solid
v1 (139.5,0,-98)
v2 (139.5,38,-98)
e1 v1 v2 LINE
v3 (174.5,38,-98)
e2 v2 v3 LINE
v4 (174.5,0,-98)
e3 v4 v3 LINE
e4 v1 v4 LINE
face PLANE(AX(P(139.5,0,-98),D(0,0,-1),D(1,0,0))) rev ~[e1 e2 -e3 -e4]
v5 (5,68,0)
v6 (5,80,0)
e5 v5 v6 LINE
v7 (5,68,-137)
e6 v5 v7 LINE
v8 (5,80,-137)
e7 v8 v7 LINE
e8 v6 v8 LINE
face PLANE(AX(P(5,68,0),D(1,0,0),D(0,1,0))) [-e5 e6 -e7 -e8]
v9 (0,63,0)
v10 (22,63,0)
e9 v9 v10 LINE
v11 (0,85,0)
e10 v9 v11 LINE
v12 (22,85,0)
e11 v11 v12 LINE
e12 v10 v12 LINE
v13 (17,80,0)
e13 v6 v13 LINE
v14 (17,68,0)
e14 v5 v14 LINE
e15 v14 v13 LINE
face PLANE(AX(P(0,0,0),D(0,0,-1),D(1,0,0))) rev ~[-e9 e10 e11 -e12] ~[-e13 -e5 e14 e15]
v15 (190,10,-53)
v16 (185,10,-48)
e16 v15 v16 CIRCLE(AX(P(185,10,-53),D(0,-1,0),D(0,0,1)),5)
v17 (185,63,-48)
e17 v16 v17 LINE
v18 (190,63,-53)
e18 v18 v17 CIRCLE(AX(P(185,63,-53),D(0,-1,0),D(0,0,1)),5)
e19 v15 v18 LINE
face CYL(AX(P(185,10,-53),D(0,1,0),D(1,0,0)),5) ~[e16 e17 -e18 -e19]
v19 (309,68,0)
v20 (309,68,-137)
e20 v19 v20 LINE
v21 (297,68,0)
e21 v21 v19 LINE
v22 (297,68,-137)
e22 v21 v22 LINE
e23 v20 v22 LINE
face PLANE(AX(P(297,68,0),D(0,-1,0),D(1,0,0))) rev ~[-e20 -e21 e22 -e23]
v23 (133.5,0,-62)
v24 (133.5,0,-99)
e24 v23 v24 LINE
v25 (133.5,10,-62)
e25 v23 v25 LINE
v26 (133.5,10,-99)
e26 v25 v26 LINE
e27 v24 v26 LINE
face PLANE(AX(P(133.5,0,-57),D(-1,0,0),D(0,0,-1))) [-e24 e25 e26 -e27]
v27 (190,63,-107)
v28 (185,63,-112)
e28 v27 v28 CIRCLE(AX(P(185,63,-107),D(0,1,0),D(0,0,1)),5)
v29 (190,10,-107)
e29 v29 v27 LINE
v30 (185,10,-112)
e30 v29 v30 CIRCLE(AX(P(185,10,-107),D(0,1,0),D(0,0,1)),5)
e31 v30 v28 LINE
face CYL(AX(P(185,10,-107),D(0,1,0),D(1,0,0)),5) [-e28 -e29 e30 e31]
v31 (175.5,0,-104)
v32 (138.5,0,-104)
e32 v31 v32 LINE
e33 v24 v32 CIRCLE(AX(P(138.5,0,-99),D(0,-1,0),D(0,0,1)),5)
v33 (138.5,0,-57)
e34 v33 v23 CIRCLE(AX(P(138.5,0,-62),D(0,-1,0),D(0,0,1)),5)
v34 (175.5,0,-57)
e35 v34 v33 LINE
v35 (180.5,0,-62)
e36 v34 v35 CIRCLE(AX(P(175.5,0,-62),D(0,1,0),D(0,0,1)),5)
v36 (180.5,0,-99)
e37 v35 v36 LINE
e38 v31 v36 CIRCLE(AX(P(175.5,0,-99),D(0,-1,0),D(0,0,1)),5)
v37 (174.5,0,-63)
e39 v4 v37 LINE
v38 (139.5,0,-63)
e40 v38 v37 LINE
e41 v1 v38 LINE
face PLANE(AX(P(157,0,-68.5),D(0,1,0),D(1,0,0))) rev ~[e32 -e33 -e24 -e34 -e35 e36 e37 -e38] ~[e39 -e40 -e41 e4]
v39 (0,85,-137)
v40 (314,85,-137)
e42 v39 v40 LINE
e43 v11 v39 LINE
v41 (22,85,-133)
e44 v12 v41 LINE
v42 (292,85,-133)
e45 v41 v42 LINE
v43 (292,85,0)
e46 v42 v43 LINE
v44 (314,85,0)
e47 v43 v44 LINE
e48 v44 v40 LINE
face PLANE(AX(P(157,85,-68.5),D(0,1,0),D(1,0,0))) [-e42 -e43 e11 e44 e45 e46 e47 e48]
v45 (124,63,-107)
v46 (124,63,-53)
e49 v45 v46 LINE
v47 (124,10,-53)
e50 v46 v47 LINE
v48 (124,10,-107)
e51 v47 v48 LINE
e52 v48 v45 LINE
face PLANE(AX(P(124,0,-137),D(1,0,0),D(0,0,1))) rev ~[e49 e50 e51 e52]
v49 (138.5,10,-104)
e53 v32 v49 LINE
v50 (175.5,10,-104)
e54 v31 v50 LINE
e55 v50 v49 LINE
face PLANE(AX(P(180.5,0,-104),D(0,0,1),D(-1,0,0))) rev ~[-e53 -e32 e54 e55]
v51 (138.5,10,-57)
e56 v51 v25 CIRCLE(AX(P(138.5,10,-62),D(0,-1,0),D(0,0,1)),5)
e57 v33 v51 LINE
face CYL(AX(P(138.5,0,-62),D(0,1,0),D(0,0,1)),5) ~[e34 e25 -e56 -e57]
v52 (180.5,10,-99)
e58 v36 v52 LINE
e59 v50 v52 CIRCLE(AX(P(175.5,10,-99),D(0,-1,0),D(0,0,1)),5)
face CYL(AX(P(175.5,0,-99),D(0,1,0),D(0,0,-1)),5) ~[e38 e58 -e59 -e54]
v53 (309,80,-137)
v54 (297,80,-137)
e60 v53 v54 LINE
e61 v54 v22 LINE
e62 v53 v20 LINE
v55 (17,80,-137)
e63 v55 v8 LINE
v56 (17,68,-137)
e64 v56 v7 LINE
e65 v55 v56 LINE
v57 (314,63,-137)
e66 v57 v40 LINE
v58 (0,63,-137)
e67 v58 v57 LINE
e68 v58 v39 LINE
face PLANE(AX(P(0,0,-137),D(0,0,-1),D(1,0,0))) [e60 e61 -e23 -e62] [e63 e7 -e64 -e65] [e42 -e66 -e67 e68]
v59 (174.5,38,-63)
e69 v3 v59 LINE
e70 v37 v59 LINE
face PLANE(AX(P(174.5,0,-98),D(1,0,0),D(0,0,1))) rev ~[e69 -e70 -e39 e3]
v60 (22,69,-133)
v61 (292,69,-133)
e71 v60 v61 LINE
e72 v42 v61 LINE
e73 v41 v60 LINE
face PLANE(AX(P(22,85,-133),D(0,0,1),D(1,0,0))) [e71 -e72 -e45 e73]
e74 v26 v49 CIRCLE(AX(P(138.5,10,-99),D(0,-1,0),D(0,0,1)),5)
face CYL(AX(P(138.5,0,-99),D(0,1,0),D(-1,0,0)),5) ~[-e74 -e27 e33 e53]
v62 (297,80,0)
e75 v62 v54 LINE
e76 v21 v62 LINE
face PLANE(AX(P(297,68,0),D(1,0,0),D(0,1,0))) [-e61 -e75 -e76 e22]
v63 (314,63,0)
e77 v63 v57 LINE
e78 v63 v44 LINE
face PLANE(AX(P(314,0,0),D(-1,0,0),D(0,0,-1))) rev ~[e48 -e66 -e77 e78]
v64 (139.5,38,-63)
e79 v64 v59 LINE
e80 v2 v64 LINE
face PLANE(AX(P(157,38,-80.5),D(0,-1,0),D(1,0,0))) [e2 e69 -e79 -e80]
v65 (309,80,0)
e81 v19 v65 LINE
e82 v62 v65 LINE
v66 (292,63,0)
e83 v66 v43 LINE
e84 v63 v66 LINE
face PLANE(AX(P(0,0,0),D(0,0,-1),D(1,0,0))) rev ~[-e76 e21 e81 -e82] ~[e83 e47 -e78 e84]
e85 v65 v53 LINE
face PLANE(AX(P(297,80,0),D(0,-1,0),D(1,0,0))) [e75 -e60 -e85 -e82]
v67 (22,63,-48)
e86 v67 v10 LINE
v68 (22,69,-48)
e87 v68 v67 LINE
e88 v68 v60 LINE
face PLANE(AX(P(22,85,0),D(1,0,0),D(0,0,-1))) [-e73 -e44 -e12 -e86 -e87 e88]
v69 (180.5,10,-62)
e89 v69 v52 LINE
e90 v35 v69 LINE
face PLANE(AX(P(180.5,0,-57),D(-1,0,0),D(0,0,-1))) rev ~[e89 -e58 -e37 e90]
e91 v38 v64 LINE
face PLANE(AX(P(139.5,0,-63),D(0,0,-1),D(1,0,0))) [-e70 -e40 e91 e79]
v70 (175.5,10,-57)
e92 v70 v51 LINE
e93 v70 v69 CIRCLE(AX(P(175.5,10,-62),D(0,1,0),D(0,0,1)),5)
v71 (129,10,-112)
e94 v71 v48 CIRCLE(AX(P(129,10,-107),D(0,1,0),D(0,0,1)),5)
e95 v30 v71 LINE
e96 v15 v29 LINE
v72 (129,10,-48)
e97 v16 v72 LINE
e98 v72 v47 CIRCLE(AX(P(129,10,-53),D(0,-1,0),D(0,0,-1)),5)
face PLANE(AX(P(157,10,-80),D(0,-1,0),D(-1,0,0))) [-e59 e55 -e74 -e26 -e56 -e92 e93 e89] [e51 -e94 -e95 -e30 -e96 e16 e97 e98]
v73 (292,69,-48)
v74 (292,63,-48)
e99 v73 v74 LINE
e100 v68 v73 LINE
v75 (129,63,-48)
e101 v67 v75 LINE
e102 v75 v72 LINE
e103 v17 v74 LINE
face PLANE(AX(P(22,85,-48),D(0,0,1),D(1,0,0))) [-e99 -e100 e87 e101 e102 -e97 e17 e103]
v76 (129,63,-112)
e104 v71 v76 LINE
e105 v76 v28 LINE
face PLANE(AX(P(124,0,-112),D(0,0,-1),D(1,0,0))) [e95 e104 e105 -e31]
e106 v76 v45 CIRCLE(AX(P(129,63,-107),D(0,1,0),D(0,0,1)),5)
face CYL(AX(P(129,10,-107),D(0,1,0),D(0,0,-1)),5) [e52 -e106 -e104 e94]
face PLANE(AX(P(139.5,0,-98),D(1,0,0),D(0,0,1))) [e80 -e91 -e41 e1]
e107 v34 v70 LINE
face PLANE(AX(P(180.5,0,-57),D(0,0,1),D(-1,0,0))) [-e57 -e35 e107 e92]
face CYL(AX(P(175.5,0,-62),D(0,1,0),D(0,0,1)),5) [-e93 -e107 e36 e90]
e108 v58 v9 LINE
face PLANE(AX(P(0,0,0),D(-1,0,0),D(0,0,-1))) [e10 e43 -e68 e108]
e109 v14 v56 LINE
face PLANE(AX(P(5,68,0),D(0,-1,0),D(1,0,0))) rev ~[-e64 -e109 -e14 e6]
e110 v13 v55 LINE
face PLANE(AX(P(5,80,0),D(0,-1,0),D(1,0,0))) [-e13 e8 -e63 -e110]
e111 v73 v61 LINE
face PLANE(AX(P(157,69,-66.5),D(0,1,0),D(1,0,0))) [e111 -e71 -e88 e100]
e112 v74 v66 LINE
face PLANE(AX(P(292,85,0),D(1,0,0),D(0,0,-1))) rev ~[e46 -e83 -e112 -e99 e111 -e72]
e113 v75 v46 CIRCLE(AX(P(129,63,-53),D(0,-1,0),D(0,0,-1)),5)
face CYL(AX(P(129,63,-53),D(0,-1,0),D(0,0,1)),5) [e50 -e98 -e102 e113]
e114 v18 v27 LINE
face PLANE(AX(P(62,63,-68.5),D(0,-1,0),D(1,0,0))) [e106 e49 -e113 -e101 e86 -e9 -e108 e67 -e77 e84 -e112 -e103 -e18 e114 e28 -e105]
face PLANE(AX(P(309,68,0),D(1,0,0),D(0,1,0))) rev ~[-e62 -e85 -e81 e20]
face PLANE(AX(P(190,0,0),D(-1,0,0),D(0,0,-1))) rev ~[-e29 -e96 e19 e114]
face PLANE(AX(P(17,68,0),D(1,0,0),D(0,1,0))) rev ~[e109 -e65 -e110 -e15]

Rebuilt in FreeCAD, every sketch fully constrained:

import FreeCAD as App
import Part
import Sketcher
from FreeCAD import Vector
Q = App.Units.Quantity


def edges_at(feature, points):
    """Names of the edges that pass closest to the given points."""
    edges = feature.Shape.Edges
    near = lambda p: min(range(len(edges)), key=lambda i: edges[i].distToShape(Part.Vertex(*p))[0])
    return sorted({f"Edge{near(p) + 1}" for p in points})


def add_polygon(sketch, points):
    """Adds a closed chain of lines whose ends are joined by coincident constraints."""
    first, n = sketch.GeometryCount, len(points)
    for a, b in zip(points, points[1:] + points[:1]):
        sketch.addGeometry(Part.LineSegment(App.Vector(*a, 0), App.Vector(*b, 0)), False)
    for i in range(n):
        sketch.addConstraint(Sketcher.Constraint("Coincident", first + i, 2, first + (i + 1) % n, 1))

doc = App.newDocument("Part")
body = doc.addObject("PartDesign::Body", "Body")

# Sketch on XZ plane
sketch1 = body.newObject("Sketcher::SketchObject", "Sketch")
sketch1.AttachmentSupport = (doc.getObject("XZ_Plane"), [""])
sketch1.MapMode = "FlatFace"
add_polygon(sketch1, [(0, -137), (0, 0), (314, 0), (314, -137)])  # lines 0-3
sketch1.addConstraint([
    Sketcher.Constraint("Vertical", 0),
    Sketcher.Constraint("Horizontal", 1),
    Sketcher.Constraint("Vertical", 2),
    Sketcher.Constraint("Horizontal", 3),
    Sketcher.Constraint("Coincident", 0, 2, -1, 1),
    Sketcher.Constraint("DistanceX", 1, 1, 1, 2, Q("314 mm")),
    Sketcher.Constraint("DistanceY", 0, 1, 0, 2, Q("137 mm")),
])
pad1 = body.newObject("PartDesign::Pad", "Pad")
pad1.Profile = sketch1
pad1.Length = 85
pad1.Reversed = True

# Sketch on XZ plane
sketch2 = body.newObject("Sketcher::SketchObject", "Sketch001")
sketch2.AttachmentSupport = (doc.getObject("XZ_Plane"), [""])
sketch2.MapMode = "FlatFace"
add_polygon(sketch2, [(0, 0), (0, -137), (124, -137), (124, 0)])  # lines 0-3
sketch2.addConstraint([
    Sketcher.Constraint("Vertical", 0),
    Sketcher.Constraint("Horizontal", 1),
    Sketcher.Constraint("Vertical", 2),
    Sketcher.Constraint("Horizontal", 3),
    Sketcher.Constraint("Coincident", 3, 2, -1, 1),
    Sketcher.Constraint("DistanceX", 1, 1, 1, 2, Q("124 mm")),
    Sketcher.Constraint("DistanceY", 0, 2, 0, 1, Q("137 mm")),
])
pocket1 = body.newObject("PartDesign::Pocket", "Pocket")
pocket1.Profile = sketch2
pocket1.Length = 63

# Sketch on XZ plane
sketch3 = body.newObject("Sketcher::SketchObject", "Sketch002")
sketch3.AttachmentSupport = (doc.getObject("XZ_Plane"), [""])
sketch3.MapMode = "FlatFace"
add_polygon(sketch3, [(314, -137), (314, 0), (190, 0), (190, -137)])  # lines 0-3
sketch3.addConstraint([
    Sketcher.Constraint("Vertical", 0),
    Sketcher.Constraint("Horizontal", 1),
    Sketcher.Constraint("Vertical", 2),
    Sketcher.Constraint("Horizontal", 3),
    Sketcher.Constraint("PointOnObject", 0, 2, -1),
    Sketcher.Constraint("DistanceX", 1, 2, 1, 1, Q("124 mm")),
    Sketcher.Constraint("DistanceY", 0, 1, 0, 2, Q("137 mm")),
    Sketcher.Constraint("DistanceX", -1, 1, 0, 2, Q("314 mm")),
])
pocket2 = body.newObject("PartDesign::Pocket", "Pocket001")
pocket2.Profile = sketch3
pocket2.Length = 63

# Sketch on XZ plane
sketch4 = body.newObject("Sketcher::SketchObject", "Sketch003")
sketch4.AttachmentSupport = (doc.getObject("XZ_Plane"), [""])
sketch4.MapMode = "FlatFace"
add_polygon(sketch4, [(124, -112), (124, -137), (190, -137), (190, -112)])  # lines 0-3
sketch4.addConstraint([
    Sketcher.Constraint("Vertical", 0),
    Sketcher.Constraint("Horizontal", 1),
    Sketcher.Constraint("Vertical", 2),
    Sketcher.Constraint("Horizontal", 3),
    Sketcher.Constraint("DistanceX", 1, 1, 1, 2, Q("66 mm")),
    Sketcher.Constraint("DistanceY", 0, 2, 0, 1, Q("25 mm")),
    Sketcher.Constraint("DistanceX", -1, 1, 0, 2, Q("124 mm")),
    Sketcher.Constraint("DistanceY", 0, 2, -1, 1, Q("137 mm")),
])
pocket3 = body.newObject("PartDesign::Pocket", "Pocket002")
pocket3.Profile = sketch4
pocket3.Length = 63

# Sketch on XZ plane
sketch5 = body.newObject("Sketcher::SketchObject", "Sketch004")
sketch5.AttachmentSupport = (doc.getObject("XZ_Plane"), [""])
sketch5.MapMode = "FlatFace"
sketch5.AttachmentOffset = App.Placement(Vector(0, 0, -85), App.Rotation())
add_polygon(sketch5, [(22, -133), (22, 0), (292, 0), (292, -133)])  # lines 0-3
sketch5.addConstraint([
    Sketcher.Constraint("Vertical", 0),
    Sketcher.Constraint("Horizontal", 1),
    Sketcher.Constraint("Vertical", 2),
    Sketcher.Constraint("Horizontal", 3),
    Sketcher.Constraint("PointOnObject", 0, 2, -1),
    Sketcher.Constraint("DistanceX", 1, 1, 1, 2, Q("270 mm")),
    Sketcher.Constraint("DistanceY", 0, 1, 0, 2, Q("133 mm")),
    Sketcher.Constraint("DistanceX", -1, 1, 0, 2, Q("22 mm")),
])
pocket4 = body.newObject("PartDesign::Pocket", "Pocket003")
pocket4.Profile = sketch5
pocket4.Length = 16
pocket4.Reversed = True

# Sketch on XY plane
sketch6 = body.newObject("Sketcher::SketchObject", "Sketch005")
sketch6.AttachmentSupport = (doc.getObject("XY_Plane"), [""])
sketch6.MapMode = "FlatFace"
add_polygon(sketch6, [(5, 80), (5, 68), (17, 68), (17, 80)])  # lines 0-3
add_polygon(sketch6, [(297, 80), (297, 68), (309, 68), (309, 80)])  # lines 4-7
sketch6.addConstraint([
    Sketcher.Constraint("Vertical", 0),
    Sketcher.Constraint("Horizontal", 1),
    Sketcher.Constraint("Vertical", 2),
    Sketcher.Constraint("Horizontal", 3),
    Sketcher.Constraint("Vertical", 4),
    Sketcher.Constraint("Horizontal", 5),
    Sketcher.Constraint("Vertical", 6),
    Sketcher.Constraint("Horizontal", 7),
    Sketcher.Constraint("Horizontal", 1, 2, 4, 2),
    Sketcher.Constraint("Horizontal", 3, 2, 6, 2),
    Sketcher.Constraint("Equal", 3, 5),
    Sketcher.Constraint("Equal", 7, 0),
    Sketcher.Constraint("DistanceX", 1, 1, 1, 2, Q("12 mm")),
    Sketcher.Constraint("DistanceX", -1, 1, 0, 2, Q("5 mm")),
    Sketcher.Constraint("DistanceY", -1, 1, 0, 2, Q("68 mm")),
    Sketcher.Constraint("DistanceX", -1, 1, 4, 2, Q("297 mm")),
])
pocket5 = body.newObject("PartDesign::Pocket", "Pocket004")
pocket5.Profile = sketch6
pocket5.Length = 140

# Sketch on XZ plane
sketch7 = body.newObject("Sketcher::SketchObject", "Sketch006")
sketch7.AttachmentSupport = (doc.getObject("XZ_Plane"), [""])
sketch7.MapMode = "FlatFace"
sketch7.AttachmentOffset = App.Placement(Vector(0, 0, -85), App.Rotation())
add_polygon(sketch7, [(22, -48), (22, 0), (292, 0), (292, -48)])  # lines 0-3
sketch7.addConstraint([
    Sketcher.Constraint("Vertical", 0),
    Sketcher.Constraint("Horizontal", 1),
    Sketcher.Constraint("Vertical", 2),
    Sketcher.Constraint("Horizontal", 3),
    Sketcher.Constraint("PointOnObject", 0, 2, -1),
    Sketcher.Constraint("DistanceX", 1, 1, 1, 2, Q("270 mm")),
    Sketcher.Constraint("DistanceY", 0, 1, 0, 2, Q("48 mm")),
    Sketcher.Constraint("DistanceX", -1, 1, 0, 2, Q("22 mm")),
])
pocket6 = body.newObject("PartDesign::Pocket", "Pocket005")
pocket6.Profile = sketch7
pocket6.Length = 140
pocket6.Reversed = True

# Sketch on XZ plane
sketch8 = body.newObject("Sketcher::SketchObject", "Sketch007")
sketch8.AttachmentSupport = (doc.getObject("XZ_Plane"), [""])
sketch8.MapMode = "FlatFace"
add_polygon(sketch8, [(139.5, -63), (139.5, -98), (174.5, -98), (174.5, -63)])  # lines 0-3
sketch8.addConstraint([
    Sketcher.Constraint("Vertical", 0),
    Sketcher.Constraint("Horizontal", 1),
    Sketcher.Constraint("Vertical", 2),
    Sketcher.Constraint("Horizontal", 3),
    Sketcher.Constraint("Equal", 3, 0),
    Sketcher.Constraint("DistanceX", 1, 1, 1, 2, Q("35 mm")),
    Sketcher.Constraint("DistanceY", 0, 2, -1, 1, Q("98 mm")),
    Sketcher.Constraint("DistanceX", -1, 1, 0, 2, Q("139.5 mm")),
])
pocket7 = body.newObject("PartDesign::Pocket", "Pocket006")
pocket7.Profile = sketch8
pocket7.Length = 38

# Sketch on XZ plane
sketch9 = body.newObject("Sketcher::SketchObject", "Sketch008")
sketch9.AttachmentSupport = (doc.getObject("XZ_Plane"), [""])
sketch9.MapMode = "FlatFace"
add_polygon(sketch9, [(190, -112), (190, -48), (124, -48), (124, -112)])  # lines 0-3
add_polygon(sketch9, [(133.5, -57), (180.5, -57), (180.5, -104), (133.5, -104)])  # lines 4-7
sketch9.addConstraint([
    Sketcher.Constraint("Vertical", 0),
    Sketcher.Constraint("Horizontal", 1),
    Sketcher.Constraint("Vertical", 2),
    Sketcher.Constraint("Horizontal", 3),
    Sketcher.Constraint("Horizontal", 4),
    Sketcher.Constraint("Vertical", 5),
    Sketcher.Constraint("Horizontal", 6),
    Sketcher.Constraint("Vertical", 7),
    Sketcher.Constraint("Equal", 6, 5),
    Sketcher.Constraint("DistanceX", 1, 2, 1, 1, Q("66 mm")),
    Sketcher.Constraint("DistanceX", 4, 1, 4, 2, Q("47 mm")),
    Sketcher.Constraint("DistanceY", 0, 1, 0, 2, Q("64 mm")),
    Sketcher.Constraint("DistanceX", -1, 1, 0, 2, Q("190 mm")),
    Sketcher.Constraint("DistanceY", 0, 2, -1, 1, Q("48 mm")),
    Sketcher.Constraint("DistanceY", 4, 2, -1, 1, Q("57 mm")),
    Sketcher.Constraint("DistanceX", -1, 1, 4, 2, Q("180.5 mm")),
])
pocket8 = body.newObject("PartDesign::Pocket", "Pocket007")
pocket8.Profile = sketch9
pocket8.Length = 10
doc.recompute()

fillet = body.newObject("PartDesign::Fillet", "Fillet")
fillet.Base = (pocket8, edges_at(pocket8, [
    (180.5, 5, -57),
    (133.5, 5, -57),
    (133.5, 5, -104),
    (180.5, 5, -104),
]))
fillet.Radius = 5
doc.recompute()

fillet2 = body.newObject("PartDesign::Fillet", "Fillet001")
fillet2.Base = (fillet, edges_at(fillet, [
    (190, 36.5, -48),
    (124, 36.5, -48),
    (124, 36.5, -112),
    (190, 36.5, -112),
]))
fillet2.Radius = 5

doc.recompute()
